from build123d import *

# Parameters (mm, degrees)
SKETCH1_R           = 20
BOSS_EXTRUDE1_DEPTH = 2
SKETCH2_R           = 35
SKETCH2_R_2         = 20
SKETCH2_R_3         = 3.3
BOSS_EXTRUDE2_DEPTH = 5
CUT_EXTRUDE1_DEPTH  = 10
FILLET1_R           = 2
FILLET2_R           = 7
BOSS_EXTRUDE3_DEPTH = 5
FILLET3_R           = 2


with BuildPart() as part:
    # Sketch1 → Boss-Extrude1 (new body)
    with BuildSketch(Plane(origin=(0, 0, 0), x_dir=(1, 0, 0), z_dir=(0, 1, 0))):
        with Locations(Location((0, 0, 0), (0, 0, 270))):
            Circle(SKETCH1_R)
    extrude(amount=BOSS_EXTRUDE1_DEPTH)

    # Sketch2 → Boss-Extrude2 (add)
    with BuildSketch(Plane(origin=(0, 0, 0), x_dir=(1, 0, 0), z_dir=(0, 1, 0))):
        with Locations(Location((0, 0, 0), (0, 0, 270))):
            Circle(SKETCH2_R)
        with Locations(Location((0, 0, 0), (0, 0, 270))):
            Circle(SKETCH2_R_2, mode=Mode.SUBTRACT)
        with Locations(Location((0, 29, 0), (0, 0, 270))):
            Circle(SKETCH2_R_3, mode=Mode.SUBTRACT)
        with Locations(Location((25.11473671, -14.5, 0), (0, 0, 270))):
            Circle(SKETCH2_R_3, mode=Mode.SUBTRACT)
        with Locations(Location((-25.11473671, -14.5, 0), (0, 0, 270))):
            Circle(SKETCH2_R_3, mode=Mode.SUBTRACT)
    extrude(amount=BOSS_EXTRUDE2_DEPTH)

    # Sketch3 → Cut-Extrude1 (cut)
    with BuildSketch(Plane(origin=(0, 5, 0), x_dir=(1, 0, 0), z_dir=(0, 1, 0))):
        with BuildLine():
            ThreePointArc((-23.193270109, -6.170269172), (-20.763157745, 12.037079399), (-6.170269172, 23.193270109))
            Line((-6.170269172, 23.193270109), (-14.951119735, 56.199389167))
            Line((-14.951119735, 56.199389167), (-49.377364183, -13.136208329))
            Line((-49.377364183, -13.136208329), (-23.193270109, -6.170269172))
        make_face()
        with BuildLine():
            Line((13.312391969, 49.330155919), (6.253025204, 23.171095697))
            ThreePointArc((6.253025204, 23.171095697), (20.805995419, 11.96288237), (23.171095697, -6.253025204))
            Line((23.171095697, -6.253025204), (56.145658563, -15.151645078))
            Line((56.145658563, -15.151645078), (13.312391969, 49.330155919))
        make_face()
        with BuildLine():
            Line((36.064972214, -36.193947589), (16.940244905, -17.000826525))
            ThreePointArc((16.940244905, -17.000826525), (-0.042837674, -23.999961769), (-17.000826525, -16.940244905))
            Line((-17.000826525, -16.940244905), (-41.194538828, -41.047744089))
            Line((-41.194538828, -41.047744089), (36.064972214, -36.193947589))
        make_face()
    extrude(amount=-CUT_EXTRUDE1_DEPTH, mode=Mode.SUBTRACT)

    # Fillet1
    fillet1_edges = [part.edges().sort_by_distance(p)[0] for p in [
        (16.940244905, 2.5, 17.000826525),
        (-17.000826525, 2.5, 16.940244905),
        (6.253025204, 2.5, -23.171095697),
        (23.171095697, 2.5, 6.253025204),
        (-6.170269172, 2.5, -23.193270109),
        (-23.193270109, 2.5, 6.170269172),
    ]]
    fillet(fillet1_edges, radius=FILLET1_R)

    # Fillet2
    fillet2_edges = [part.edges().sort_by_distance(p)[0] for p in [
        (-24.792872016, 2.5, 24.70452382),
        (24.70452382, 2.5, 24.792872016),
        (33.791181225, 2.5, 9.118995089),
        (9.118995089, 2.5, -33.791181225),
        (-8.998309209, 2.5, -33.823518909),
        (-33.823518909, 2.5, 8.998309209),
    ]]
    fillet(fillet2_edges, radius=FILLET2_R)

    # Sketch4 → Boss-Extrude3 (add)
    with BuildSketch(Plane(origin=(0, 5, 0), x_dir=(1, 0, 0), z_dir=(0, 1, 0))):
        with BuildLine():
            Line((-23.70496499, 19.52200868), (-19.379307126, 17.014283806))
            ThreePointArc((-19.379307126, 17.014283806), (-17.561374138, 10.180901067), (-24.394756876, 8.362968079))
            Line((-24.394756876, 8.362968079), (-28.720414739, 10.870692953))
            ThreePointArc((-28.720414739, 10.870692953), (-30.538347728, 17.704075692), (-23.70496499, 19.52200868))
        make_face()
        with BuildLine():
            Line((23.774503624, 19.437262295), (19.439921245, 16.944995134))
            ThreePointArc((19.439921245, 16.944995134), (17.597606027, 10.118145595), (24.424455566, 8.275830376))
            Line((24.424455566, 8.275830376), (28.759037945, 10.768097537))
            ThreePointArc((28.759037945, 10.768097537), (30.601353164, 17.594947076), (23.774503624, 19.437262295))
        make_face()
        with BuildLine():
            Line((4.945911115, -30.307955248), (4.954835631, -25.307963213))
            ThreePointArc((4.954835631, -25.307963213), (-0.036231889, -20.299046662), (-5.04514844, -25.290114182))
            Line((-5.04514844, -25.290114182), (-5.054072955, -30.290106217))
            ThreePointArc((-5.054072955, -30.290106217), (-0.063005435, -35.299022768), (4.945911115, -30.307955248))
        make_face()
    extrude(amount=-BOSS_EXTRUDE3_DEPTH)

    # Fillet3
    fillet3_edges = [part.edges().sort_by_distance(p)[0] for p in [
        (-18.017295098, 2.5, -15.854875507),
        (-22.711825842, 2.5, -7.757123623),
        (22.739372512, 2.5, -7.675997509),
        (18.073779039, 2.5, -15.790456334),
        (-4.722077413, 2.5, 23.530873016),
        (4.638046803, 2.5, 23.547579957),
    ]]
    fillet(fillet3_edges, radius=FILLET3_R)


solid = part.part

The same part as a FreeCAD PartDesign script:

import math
import FreeCAD as App
import Part
import Sketcher
from FreeCAD import Vector
Q = App.Units.Quantity


def edges_at(feature, points):
    """Names of the edges that pass closest to the given points."""
    edges = feature.Shape.Edges
    near = lambda p: min(range(len(edges)), key=lambda i: edges[i].distToShape(Part.Vertex(*p))[0])
    return sorted({f"Edge{near(p) + 1}" for p in points})

doc = App.newDocument("Part")
body = doc.addObject("PartDesign::Body", "Body")

sketch1 = doc.addObject("Sketcher::SketchObject", "Sketch")
body.addObject(sketch1)
sketch1.AttachmentSupport = (doc.XZ_Plane, [""])
sketch1.MapMode = "FlatFace"
sketch1.addGeometry(Part.Circle(Vector(0, 0, 0), Vector(0, 0, 1), 20), False)
sketch1.addConstraint([
    Sketcher.Constraint("Coincident", 0, 3, -1, 1),
    Sketcher.Constraint("Diameter", 0, Q("40 mm")),
])
pad1 = doc.addObject("PartDesign::Pad", "Pad")
body.addObject(pad1)
pad1.Profile = sketch1
pad1.Length = 2
pad1.Reversed = True

sketch2 = doc.addObject("Sketcher::SketchObject", "Sketch001")
body.addObject(sketch2)
sketch2.AttachmentSupport = (doc.XZ_Plane, [""])
sketch2.MapMode = "FlatFace"
sketch2.addGeometry([
    Part.Circle(Vector(0, 0, 0), Vector(0, 0, 1), 35),
    Part.Circle(Vector(0, -29, 0), Vector(0, 0, 1), 3.3),
    Part.Circle(Vector(-25.1, 14.5, 0), Vector(0, 0, 1), 3.3),
    Part.Circle(Vector(0, 0, 0), Vector(0, 0, 1), 20),
    Part.Circle(Vector(25.1, 14.5, 0), Vector(0, 0, 1), 3.3),
], False)
sketch2.addConstraint([
    Sketcher.Constraint("Coincident", 0, 3, -1, 1),
    Sketcher.Constraint("Coincident", 3, 3, -1, 1),
    Sketcher.Constraint("Equal", 1, 2),
    Sketcher.Constraint("Equal", 2, 4),
    Sketcher.Constraint("Symmetric", 2, 3, 4, 3, -2),
    Sketcher.Constraint("PointOnObject", 1, 3, -2),
    Sketcher.Constraint("Diameter", 0, Q("70 mm")),
    Sketcher.Constraint("Diameter", 3, Q("40 mm")),
    Sketcher.Constraint("Diameter", 1, Q("6.6 mm")),
    Sketcher.Constraint("DistanceY", 1, 3, -1, 1, Q("29 mm")),
    Sketcher.Constraint("DistanceY", -1, 1, 2, 3, Q("14.5 mm")),
    Sketcher.Constraint("DistanceX", 2, 3, -1, 1, Q("25.114737 mm")),
])
pad2 = doc.addObject("PartDesign::Pad", "Pad001")
body.addObject(pad2)
pad2.Profile = sketch2
pad2.Length = 5
pad2.Reversed = True

sketch3 = doc.addObject("Sketcher::SketchObject", "Sketch002")
body.addObject(sketch3)
sketch3.AttachmentSupport = (doc.XZ_Plane, [""])
sketch3.MapMode = "FlatFace"
sketch3.AttachmentOffset = App.Placement(Vector(0, 0, -5), App.Rotation())
sketch3.addGeometry([
    Part.ArcOfCircle(Part.Circle(Vector(0, 0, 0), Vector(0, 0, 1), 24), math.radians(165), math.radians(255)),
    Part.LineSegment(Vector(-6, -23, 0), Vector(-15, -56, 0)),
    Part.LineSegment(Vector(-15, -56, 0), Vector(-49, 13, 0)),
    Part.LineSegment(Vector(-49, 13, 0), Vector(-23, 6, 0)),
    Part.LineSegment(Vector(13, -49, 0), Vector(6, -23, 0)),
    Part.ArcOfCircle(Part.Circle(Vector(0, 0, 0), Vector(0, 0, 1), 24), math.radians(-75), math.radians(15)),
    Part.LineSegment(Vector(23, 6, 0), Vector(56, 15, 0)),
    Part.LineSegment(Vector(56, 15, 0), Vector(13, -49, 0)),
    Part.LineSegment(Vector(36, 36, 0), Vector(17, 17, 0)),
    Part.ArcOfCircle(Part.Circle(Vector(0, 0, 0), Vector(0, 0, 1), 24), math.radians(45), math.radians(135)),
    Part.LineSegment(Vector(-17, 17, 0), Vector(-41, 41, 0)),
    Part.LineSegment(Vector(-41, 41, 0), Vector(36, 36, 0)),
], False)
sketch3.addConstraint([
    Sketcher.Constraint("Coincident", 0, 2, 1, 1),
    Sketcher.Constraint("Coincident", 1, 2, 2, 1),
    Sketcher.Constraint("Coincident", 2, 2, 3, 1),
    Sketcher.Constraint("Coincident", 3, 2, 0, 1),
    Sketcher.Constraint("Coincident", 4, 2, 5, 1),
    Sketcher.Constraint("Coincident", 5, 2, 6, 1),
    Sketcher.Constraint("Coincident", 6, 2, 7, 1),
    Sketcher.Constraint("Coincident", 7, 2, 4, 1),
    Sketcher.Constraint("Coincident", 8, 2, 9, 1),
    Sketcher.Constraint("Coincident", 9, 2, 10, 1),
    Sketcher.Constraint("Coincident", 10, 2, 11, 1),
    Sketcher.Constraint("Coincident", 11, 2, 8, 1),
    Sketcher.Constraint("Coincident", 0, 3, -1, 1),
    Sketcher.Constraint("Coincident", 5, 3, -1, 1),
    Sketcher.Constraint("Coincident", 9, 3, -1, 1),
    Sketcher.Constraint("Equal", 0, 5),
    Sketcher.Constraint("Equal", 5, 9),
    Sketcher.Constraint("Perpendicular", 1, 3),
    Sketcher.Constraint("Perpendicular", 4, 6),
    Sketcher.Constraint("Perpendicular", 8, 10),
    Sketcher.Constraint("Equal", 3, 4),
    Sketcher.Constraint("Equal", 1, 6),
    Sketcher.Constraint("Equal", 2, 7),
    Sketcher.Constraint("Equal", 4, 8),
    Sketcher.Constraint("Equal", 6, 10),
    Sketcher.Constraint("Equal", 7, 11),
    Sketcher.Constraint("Radius", 0, Q("24 mm")),
    Sketcher.Constraint("DistanceX", 3, 2, 0, 2, Q("17.023001 mm")),
    Sketcher.Constraint("DistanceY", 5, 2, 8, 2, Q("10.747801 mm")),
    Sketcher.Constraint("DistanceY", 9, 2, 10, 2, Q("24.107499 mm")),
    Sketcher.Constraint("Distance", 1, Q("34.154169 mm")),
    Sketcher.Constraint("Distance", 2, Q("77.41183 mm")),
    Sketcher.Constraint("DistanceX", 0, 2, -1, 1, Q("6.170269 mm")),
    Sketcher.Constraint("DistanceX", 1, 2, -1, 1, Q("14.95112 mm")),
    Sketcher.Constraint("DistanceX", -1, 1, 6, 2, Q("56.145659 mm")),
    Sketcher.Constraint("DistanceX", 10, 2, -1, 1, Q("41.194539 mm")),
])
pocket1 = doc.addObject("PartDesign::Pocket", "Pocket")
body.addObject(pocket1)
pocket1.Profile = sketch3
pocket1.Length = 10
pocket1.Reversed = True
doc.recompute()

fillet = doc.addObject("PartDesign::Fillet", "Fillet")
body.addObject(fillet)
fillet.Base = (pocket1, edges_at(pocket1, [
    (16.94, 2.5, 17.001),
    (-17.001, 2.5, 16.94),
    (6.253, 2.5, -23.171),
    (23.171, 2.5, 6.253),
    (-6.17, 2.5, -23.193),
    (-23.193, 2.5, 6.17),
]))
fillet.Radius = 2
doc.recompute()

fillet2 = doc.addObject("PartDesign::Fillet", "Fillet001")
body.addObject(fillet2)
fillet2.Base = (fillet, edges_at(fillet, [
    (-24.793, 2.5, 24.705),
    (24.705, 2.5, 24.793),
    (33.791, 2.5, 9.119),
    (9.119, 2.5, -33.791),
    (-8.998, 2.5, -33.824),
    (-33.824, 2.5, 8.998),
]))
fillet2.Radius = 7

sketch4 = doc.addObject("Sketcher::SketchObject", "Sketch003")
body.addObject(sketch4)
sketch4.AttachmentSupport = (doc.XZ_Plane, [""])
sketch4.MapMode = "FlatFace"
sketch4.AttachmentOffset = App.Placement(Vector(0, 0, -5), App.Rotation())
sketch4.addGeometry([
    Part.LineSegment(Vector(-19.4, -17, 0), Vector(-23.7, -19.5, 0)),
    Part.ArcOfCircle(Part.Circle(Vector(-26.2, -15.2, 0), Vector(0, 0, 1), 5), math.radians(120), math.radians(300)),
    Part.LineSegment(Vector(-28.7, -10.9, 0), Vector(-24.4, -8.4, 0)),
    Part.ArcOfCircle(Part.Circle(Vector(-21.9, -12.7, 0), Vector(0, 0, 1), 5), math.radians(-60), math.radians(120)),
    Part.LineSegment(Vector(23.8, -19.4, 0), Vector(19.4, -16.9, 0)),
    Part.ArcOfCircle(Part.Circle(Vector(21.9, -12.6, 0), Vector(0, 0, 1), 5), math.radians(60), math.radians(240)),
    Part.LineSegment(Vector(24.4, -8.3, 0), Vector(28.8, -10.8, 0)),
    Part.ArcOfCircle(Part.Circle(Vector(26.3, -15.1, 0), Vector(0, 0, 1), 5), math.radians(-120), math.radians(60)),
    Part.LineSegment(Vector(4.9, 30.3, 0), Vector(5, 25.3, 0)),
    Part.ArcOfCircle(Part.Circle(Vector(0, 25.3, 0), Vector(0, 0, 1), 5), math.radians(-180), math.radians(0)),
    Part.LineSegment(Vector(-5, 25.3, 0), Vector(-5.1, 30.3, 0)),
    Part.ArcOfCircle(Part.Circle(Vector(-0.1, 30.3, 0), Vector(0, 0, 1), 5), math.radians(0), math.radians(180)),
], False)
sketch4.addConstraint([
    Sketcher.Constraint("Tangent", 0, 2, 1, 2),
    Sketcher.Constraint("Tangent", 1, 1, 2, 1),
    Sketcher.Constraint("Tangent", 2, 2, 3, 2),
    Sketcher.Constraint("Tangent", 3, 1, 0, 1),
    Sketcher.Constraint("Tangent", 4, 2, 5, 2),
    Sketcher.Constraint("Tangent", 5, 1, 6, 1),
    Sketcher.Constraint("Tangent", 6, 2, 7, 2),
    Sketcher.Constraint("Tangent", 7, 1, 4, 1),
    Sketcher.Constraint("Tangent", 8, 2, 9, 2),
    Sketcher.Constraint("Tangent", 9, 1, 10, 1),
    Sketcher.Constraint("Tangent", 10, 2, 11, 2),
    Sketcher.Constraint("Tangent", 11, 1, 8, 1),
    Sketcher.Constraint("Equal", 1, 3),
    Sketcher.Constraint("Equal", 3, 5),
    Sketcher.Constraint("Equal", 5, 7),
    Sketcher.Constraint("Equal", 7, 9),
    Sketcher.Constraint("Equal", 9, 11),
    Sketcher.Constraint("Equal", 2, 4),
    Sketcher.Constraint("Equal", 6, 8),
    Sketcher.Constraint("Radius", 1, Q("5 mm")),
    Sketcher.Constraint("Distance", 0, Q("5 mm")),
    Sketcher.Constraint("DistanceX", 2, 2, 9, 3, Q("24.3496 mm")),
    Sketcher.Constraint("DistanceX", 1, 3, -1, 1, Q("26.21269 mm")),
    Sketcher.Constraint("DistanceY", 1, 3, -1, 1, Q("15.196351 mm")),
    Sketcher.Constraint("DistanceX", -1, 1, 5, 3, Q("21.932188 mm")),
    Sketcher.Constraint("DistanceX", -1, 1, 7, 3, Q("26.266771 mm")),
    Sketcher.Constraint("DistanceY", 7, 3, -1, 1, Q("15.10268 mm")),
    Sketcher.Constraint("DistanceY", -1, 1, 9, 3, Q("25.299039 mm")),
    Sketcher.Constraint("DistanceX", 11, 3, -1, 1, Q("0.054081 mm")),
    Sketcher.Constraint("DistanceY", 0, 2, -1, 1, Q("19.522009 mm")),
])
pad3 = doc.addObject("PartDesign::Pad", "Pad002")
body.addObject(pad3)
pad3.Profile = sketch4
pad3.Length = 5
doc.recompute()

fillet3 = doc.addObject("PartDesign::Fillet", "Fillet002")
body.addObject(fillet3)
fillet3.Base = (pad3, edges_at(pad3, [
    (-18.017, 2.5, -15.855),
    (-22.712, 2.5, -7.757),
    (22.739, 2.5, -7.676),
    (18.074, 2.5, -15.79),
    (-4.722, 2.5, 23.531),
    (4.638, 2.5, 23.548),
]))
fillet3.Radius = 2

doc.recompute()
